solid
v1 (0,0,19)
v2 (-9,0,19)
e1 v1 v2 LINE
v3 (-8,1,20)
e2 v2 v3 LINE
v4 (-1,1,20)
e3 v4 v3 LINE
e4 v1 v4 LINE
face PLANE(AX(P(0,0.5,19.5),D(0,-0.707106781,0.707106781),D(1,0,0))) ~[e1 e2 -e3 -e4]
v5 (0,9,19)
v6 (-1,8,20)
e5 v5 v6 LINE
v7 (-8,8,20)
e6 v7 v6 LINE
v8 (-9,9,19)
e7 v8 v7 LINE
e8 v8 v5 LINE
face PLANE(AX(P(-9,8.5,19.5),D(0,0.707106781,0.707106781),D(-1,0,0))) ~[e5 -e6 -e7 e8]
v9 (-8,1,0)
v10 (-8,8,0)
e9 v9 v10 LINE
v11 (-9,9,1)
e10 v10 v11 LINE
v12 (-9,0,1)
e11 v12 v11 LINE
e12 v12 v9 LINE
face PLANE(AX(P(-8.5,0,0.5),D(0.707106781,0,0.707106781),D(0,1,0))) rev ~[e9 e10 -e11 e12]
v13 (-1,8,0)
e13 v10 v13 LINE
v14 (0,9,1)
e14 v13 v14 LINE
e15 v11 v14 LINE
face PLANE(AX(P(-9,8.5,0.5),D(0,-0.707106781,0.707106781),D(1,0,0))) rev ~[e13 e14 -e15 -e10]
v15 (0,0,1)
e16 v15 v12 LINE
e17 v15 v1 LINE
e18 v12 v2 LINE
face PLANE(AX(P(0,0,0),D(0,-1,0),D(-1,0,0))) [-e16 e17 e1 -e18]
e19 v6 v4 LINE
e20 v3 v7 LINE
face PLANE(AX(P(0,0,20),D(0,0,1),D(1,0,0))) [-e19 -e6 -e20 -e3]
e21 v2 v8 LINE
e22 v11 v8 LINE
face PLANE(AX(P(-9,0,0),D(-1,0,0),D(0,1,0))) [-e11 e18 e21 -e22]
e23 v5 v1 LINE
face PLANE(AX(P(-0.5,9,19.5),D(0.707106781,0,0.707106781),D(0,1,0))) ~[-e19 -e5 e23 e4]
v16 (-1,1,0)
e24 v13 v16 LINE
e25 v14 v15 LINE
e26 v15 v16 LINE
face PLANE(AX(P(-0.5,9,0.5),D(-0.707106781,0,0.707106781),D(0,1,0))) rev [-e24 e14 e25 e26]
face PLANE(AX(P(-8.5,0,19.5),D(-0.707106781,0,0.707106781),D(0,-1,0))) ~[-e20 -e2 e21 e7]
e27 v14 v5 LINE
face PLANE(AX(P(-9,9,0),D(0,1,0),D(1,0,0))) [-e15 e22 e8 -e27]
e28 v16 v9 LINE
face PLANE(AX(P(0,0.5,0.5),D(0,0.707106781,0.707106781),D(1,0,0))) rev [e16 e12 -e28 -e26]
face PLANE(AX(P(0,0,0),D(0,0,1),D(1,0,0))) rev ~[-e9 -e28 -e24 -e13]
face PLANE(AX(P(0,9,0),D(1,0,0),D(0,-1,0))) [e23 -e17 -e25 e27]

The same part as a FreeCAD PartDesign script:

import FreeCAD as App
import Part
import Sketcher

V = App.Vector
Q = App.Units.Quantity


def edges_at(feature, points):
    """Names of the edges that pass closest to the given points."""
    edges = feature.Shape.Edges
    near = lambda p: min(range(len(edges)), key=lambda i: edges[i].distToShape(Part.Vertex(*p))[0])
    return sorted({f"Edge{near(p) + 1}" for p in points})

doc = App.newDocument("Part")
body = doc.addObject("PartDesign::Body", "Body")

# Sketch on XY plane
sketch1 = doc.addObject("Sketcher::SketchObject", "Sketch")
body.addObject(sketch1)
sketch1.AttachmentSupport = (doc.XY_Plane, [""])
sketch1.MapMode = "FlatFace"
sketch1.addGeometry([
    Part.LineSegment(V(-9, 0, 0), V(0, 0, 0)),
    Part.LineSegment(V(0, 0, 0), V(0, 9, 0)),
    Part.LineSegment(V(0, 9, 0), V(-9, 9, 0)),
    Part.LineSegment(V(-9, 9, 0), V(-9, 0, 0)),
], False)
sketch1.addConstraint([
    Sketcher.Constraint("Coincident", 0, 2, 1, 1),
    Sketcher.Constraint("Coincident", 1, 2, 2, 1),
    Sketcher.Constraint("Coincident", 2, 2, 3, 1),
    Sketcher.Constraint("Coincident", 3, 2, 0, 1),
    Sketcher.Constraint("Horizontal", 0),
    Sketcher.Constraint("Vertical", 1),
    Sketcher.Constraint("Horizontal", 2),
    Sketcher.Constraint("Vertical", 3),
    Sketcher.Constraint("Coincident", 0, 2, -1, 1),
    Sketcher.Constraint("Equal", 2, 1),
    Sketcher.Constraint("DistanceX", 0, 1, 0, 2, Q("9 mm")),
])
pad1 = doc.addObject("PartDesign::Pad", "Pad")
body.addObject(pad1)
pad1.Profile = sketch1
pad1.Length = 20
doc.recompute()

chamfer = doc.addObject("PartDesign::Chamfer", "Chamfer")
body.addObject(chamfer)
chamfer.Base = (pad1, edges_at(pad1, [
    (-4.5, 9, 20),
    (0, 4.5, 20),
    (-4.5, 0, 20),
    (-9, 4.5, 20),
]))
chamfer.Size = 1
doc.recompute()

chamfer2 = doc.addObject("PartDesign::Chamfer", "Chamfer001")
body.addObject(chamfer2)
chamfer2.Base = (chamfer, edges_at(chamfer, [
    (-4.5, 9, 0),
    (0, 4.5, 0),
    (-4.5, 0, 0),
    (-9, 4.5, 0),
]))
chamfer2.Size = 1

doc.recompute()
